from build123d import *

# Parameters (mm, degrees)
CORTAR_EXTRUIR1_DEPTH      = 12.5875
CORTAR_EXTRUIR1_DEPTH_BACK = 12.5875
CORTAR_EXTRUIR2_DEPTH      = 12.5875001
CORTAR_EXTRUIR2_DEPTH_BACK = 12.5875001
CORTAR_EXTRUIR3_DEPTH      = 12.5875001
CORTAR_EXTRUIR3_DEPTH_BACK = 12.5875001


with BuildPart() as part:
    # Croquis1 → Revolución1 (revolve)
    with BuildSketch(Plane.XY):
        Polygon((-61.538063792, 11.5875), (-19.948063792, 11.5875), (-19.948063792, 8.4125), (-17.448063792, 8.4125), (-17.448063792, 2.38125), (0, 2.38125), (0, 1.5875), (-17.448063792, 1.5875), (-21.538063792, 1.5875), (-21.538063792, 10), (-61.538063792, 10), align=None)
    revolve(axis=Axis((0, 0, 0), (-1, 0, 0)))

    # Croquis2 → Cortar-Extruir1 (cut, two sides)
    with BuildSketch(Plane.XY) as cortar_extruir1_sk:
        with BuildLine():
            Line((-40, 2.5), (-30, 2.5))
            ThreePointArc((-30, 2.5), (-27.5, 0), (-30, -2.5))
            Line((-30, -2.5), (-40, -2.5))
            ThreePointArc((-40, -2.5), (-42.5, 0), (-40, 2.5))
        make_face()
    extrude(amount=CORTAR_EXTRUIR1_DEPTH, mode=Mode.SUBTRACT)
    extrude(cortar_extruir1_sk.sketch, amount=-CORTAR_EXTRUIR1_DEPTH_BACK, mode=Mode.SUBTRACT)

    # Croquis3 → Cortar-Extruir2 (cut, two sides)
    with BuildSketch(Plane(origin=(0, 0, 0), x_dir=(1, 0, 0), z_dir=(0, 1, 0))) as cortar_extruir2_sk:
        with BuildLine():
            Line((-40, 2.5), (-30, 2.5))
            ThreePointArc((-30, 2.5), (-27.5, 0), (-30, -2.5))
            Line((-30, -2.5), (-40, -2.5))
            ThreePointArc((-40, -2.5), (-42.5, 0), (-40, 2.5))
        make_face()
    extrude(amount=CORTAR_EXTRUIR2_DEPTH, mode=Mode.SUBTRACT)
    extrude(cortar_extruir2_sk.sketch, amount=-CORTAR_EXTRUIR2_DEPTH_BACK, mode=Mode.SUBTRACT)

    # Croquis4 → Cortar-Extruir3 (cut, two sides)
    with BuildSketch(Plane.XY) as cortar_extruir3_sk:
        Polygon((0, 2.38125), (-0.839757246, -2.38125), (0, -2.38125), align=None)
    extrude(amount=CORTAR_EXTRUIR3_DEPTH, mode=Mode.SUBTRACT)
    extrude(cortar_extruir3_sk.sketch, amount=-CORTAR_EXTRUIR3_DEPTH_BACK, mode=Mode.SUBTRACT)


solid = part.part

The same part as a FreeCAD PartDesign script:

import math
import FreeCAD as App
import Part
import Sketcher
from FreeCAD import Vector
Q = App.Units.Quantity


def add_polygon(sketch, points):
    """Adds a closed chain of lines whose ends are joined by coincident constraints."""
    first, n = sketch.GeometryCount, len(points)
    for a, b in zip(points, points[1:] + points[:1]):
        sketch.addGeometry(Part.LineSegment(App.Vector(*a, 0), App.Vector(*b, 0)), False)
    for i in range(n):
        sketch.addConstraint(Sketcher.Constraint("Coincident", first + i, 2, first + (i + 1) % n, 1))

doc = App.newDocument("Part")
body = doc.addObject("PartDesign::Body", "Body")

# Sketch on XY plane
sketch1 = body.newObject("Sketcher::SketchObject", "Sketch")
sketch1.AttachmentSupport = (doc.getObject("XY_Plane"), [""])
sketch1.MapMode = "FlatFace"
add_polygon(sketch1, [(-19.9, 11.6), (-61.5, 11.6), (-61.5, 10), (-21.5, 10), (-21.5, 1.6), (0, 1.6), (0, 2.4), (-17.4, 2.4), (-17.4, 8.4), (-19.9, 8.4)])  # lines 0-9
sketch1.addConstraint([
    Sketcher.Constraint("Horizontal", 0),
    Sketcher.Constraint("Vertical", 1),
    Sketcher.Constraint("Horizontal", 2),
    Sketcher.Constraint("Vertical", 3),
    Sketcher.Constraint("Horizontal", 4),
    Sketcher.Constraint("Vertical", 5),
    Sketcher.Constraint("Horizontal", 6),
    Sketcher.Constraint("Vertical", 7),
    Sketcher.Constraint("Horizontal", 8),
    Sketcher.Constraint("Vertical", 9),
    Sketcher.Constraint("PointOnObject", 4, 2, -2),
    Sketcher.Constraint("DistanceX", 2, 1, 2, 2, Q("40 mm")),
    Sketcher.Constraint("DistanceX", 8, 2, 8, 1, Q("2.5 mm")),
    Sketcher.Constraint("DistanceY", -1, 1, 1, 2, Q("10 mm")),
    Sketcher.Constraint("DistanceY", 3, 2, 0, 2, Q("10 mm")),
    Sketcher.Constraint("DistanceX", 0, 2, 0, 1, Q("41.59 mm")),
    Sketcher.Constraint("DistanceY", 9, 1, 9, 2, Q("3.175 mm")),
    Sketcher.Constraint("DistanceY", 1, 2, 1, 1, Q("1.5875 mm")),
    Sketcher.Constraint("DistanceY", 5, 1, 5, 2, Q("0.79375 mm")),
    Sketcher.Constraint("DistanceX", 4, 1, 4, 2, Q("21.538064 mm")),
])
revolution = body.newObject("PartDesign::Revolution", "Revolution")
revolution.Profile = sketch1
revolution.ReferenceAxis = (sketch1, ["H_Axis"])
revolution.Angle = 360

# Sketch on XY plane
sketch2 = body.newObject("Sketcher::SketchObject", "Sketch001")
sketch2.AttachmentSupport = (doc.getObject("XY_Plane"), [""])
sketch2.MapMode = "FlatFace"
sketch2.addGeometry([
    Part.LineSegment(Vector(-30, 2.5, 0), Vector(-40, 2.5, 0)),
    Part.ArcOfCircle(Part.Circle(Vector(-40, 0, 0), Vector(0, 0, 1), 2.5), math.radians(90), math.radians(270)),
    Part.LineSegment(Vector(-40, -2.5, 0), Vector(-30, -2.5, 0)),
    Part.ArcOfCircle(Part.Circle(Vector(-30, 0, 0), Vector(0, 0, 1), 2.5), math.radians(-90), math.radians(90)),
], False)
sketch2.addConstraint([
    Sketcher.Constraint("Tangent", 0, 2, 1, 1),
    Sketcher.Constraint("Tangent", 1, 2, 2, 1),
    Sketcher.Constraint("Tangent", 2, 2, 3, 1),
    Sketcher.Constraint("Tangent", 3, 2, 0, 1),
    Sketcher.Constraint("Horizontal", 0),
    Sketcher.Constraint("Horizontal", 2),
    Sketcher.Constraint("PointOnObject", 1, 3, -1),
    Sketcher.Constraint("Radius", 1, Q("2.5 mm")),
    Sketcher.Constraint("DistanceX", 0, 2, 0, 1, Q("10 mm")),
    Sketcher.Constraint("DistanceX", 1, 3, -1, 1, Q("40 mm")),
])
pocket1 = body.newObject("PartDesign::Pocket", "Pocket")
pocket1.Profile = sketch2
pocket1.Type = "ThroughAll"
pocket1.Midplane = True

# Sketch on XZ plane
sketch3 = body.newObject("Sketcher::SketchObject", "Sketch002")
sketch3.AttachmentSupport = (doc.getObject("XZ_Plane"), [""])
sketch3.MapMode = "FlatFace"
sketch3.addGeometry([
    Part.LineSegment(Vector(-30, -2.5, 0), Vector(-40, -2.5, 0)),
    Part.ArcOfCircle(Part.Circle(Vector(-40, 0, 0), Vector(0, 0, 1), 2.5), math.radians(90), math.radians(270)),
    Part.LineSegment(Vector(-40, 2.5, 0), Vector(-30, 2.5, 0)),
    Part.ArcOfCircle(Part.Circle(Vector(-30, 0, 0), Vector(0, 0, 1), 2.5), math.radians(-90), math.radians(90)),
], False)
sketch3.addConstraint([
    Sketcher.Constraint("Tangent", 0, 2, 1, 2),
    Sketcher.Constraint("Tangent", 1, 1, 2, 1),
    Sketcher.Constraint("Tangent", 2, 2, 3, 2),
    Sketcher.Constraint("Tangent", 3, 1, 0, 1),
    Sketcher.Constraint("Horizontal", 0),
    Sketcher.Constraint("Horizontal", 2),
    Sketcher.Constraint("PointOnObject", 1, 3, -1),
    Sketcher.Constraint("Radius", 1, Q("2.5 mm")),
    Sketcher.Constraint("DistanceX", 0, 2, 0, 1, Q("10 mm")),
    Sketcher.Constraint("DistanceX", 1, 3, -1, 1, Q("40 mm")),
])
pocket2 = body.newObject("PartDesign::Pocket", "Pocket001")
pocket2.Profile = sketch3
pocket2.Type = "ThroughAll"
pocket2.Midplane = True

# Sketch on XY plane
sketch4 = body.newObject("Sketcher::SketchObject", "Sketch003")
sketch4.AttachmentSupport = (doc.getObject("XY_Plane"), [""])
sketch4.MapMode = "FlatFace"
add_polygon(sketch4, [(0, 2.4), (-0.8, -2.4), (0, -2.4)])  # lines 0-2
sketch4.addConstraint([
    Sketcher.Constraint("Horizontal", 1),
    Sketcher.Constraint("Vertical", 2),
    Sketcher.Constraint("Symmetric", 1, 2, 2, 2, -1, 1),
    Sketcher.Constraint("Angle", 0, Q("-100 deg")),
    Sketcher.Constraint("DistanceY", 2, 1, 2, 2, Q("4.7625 mm")),
])
pocket3 = body.newObject("PartDesign::Pocket", "Pocket002")
pocket3.Profile = sketch4
pocket3.Type = "ThroughAll"
pocket3.Midplane = True

doc.recompute()
